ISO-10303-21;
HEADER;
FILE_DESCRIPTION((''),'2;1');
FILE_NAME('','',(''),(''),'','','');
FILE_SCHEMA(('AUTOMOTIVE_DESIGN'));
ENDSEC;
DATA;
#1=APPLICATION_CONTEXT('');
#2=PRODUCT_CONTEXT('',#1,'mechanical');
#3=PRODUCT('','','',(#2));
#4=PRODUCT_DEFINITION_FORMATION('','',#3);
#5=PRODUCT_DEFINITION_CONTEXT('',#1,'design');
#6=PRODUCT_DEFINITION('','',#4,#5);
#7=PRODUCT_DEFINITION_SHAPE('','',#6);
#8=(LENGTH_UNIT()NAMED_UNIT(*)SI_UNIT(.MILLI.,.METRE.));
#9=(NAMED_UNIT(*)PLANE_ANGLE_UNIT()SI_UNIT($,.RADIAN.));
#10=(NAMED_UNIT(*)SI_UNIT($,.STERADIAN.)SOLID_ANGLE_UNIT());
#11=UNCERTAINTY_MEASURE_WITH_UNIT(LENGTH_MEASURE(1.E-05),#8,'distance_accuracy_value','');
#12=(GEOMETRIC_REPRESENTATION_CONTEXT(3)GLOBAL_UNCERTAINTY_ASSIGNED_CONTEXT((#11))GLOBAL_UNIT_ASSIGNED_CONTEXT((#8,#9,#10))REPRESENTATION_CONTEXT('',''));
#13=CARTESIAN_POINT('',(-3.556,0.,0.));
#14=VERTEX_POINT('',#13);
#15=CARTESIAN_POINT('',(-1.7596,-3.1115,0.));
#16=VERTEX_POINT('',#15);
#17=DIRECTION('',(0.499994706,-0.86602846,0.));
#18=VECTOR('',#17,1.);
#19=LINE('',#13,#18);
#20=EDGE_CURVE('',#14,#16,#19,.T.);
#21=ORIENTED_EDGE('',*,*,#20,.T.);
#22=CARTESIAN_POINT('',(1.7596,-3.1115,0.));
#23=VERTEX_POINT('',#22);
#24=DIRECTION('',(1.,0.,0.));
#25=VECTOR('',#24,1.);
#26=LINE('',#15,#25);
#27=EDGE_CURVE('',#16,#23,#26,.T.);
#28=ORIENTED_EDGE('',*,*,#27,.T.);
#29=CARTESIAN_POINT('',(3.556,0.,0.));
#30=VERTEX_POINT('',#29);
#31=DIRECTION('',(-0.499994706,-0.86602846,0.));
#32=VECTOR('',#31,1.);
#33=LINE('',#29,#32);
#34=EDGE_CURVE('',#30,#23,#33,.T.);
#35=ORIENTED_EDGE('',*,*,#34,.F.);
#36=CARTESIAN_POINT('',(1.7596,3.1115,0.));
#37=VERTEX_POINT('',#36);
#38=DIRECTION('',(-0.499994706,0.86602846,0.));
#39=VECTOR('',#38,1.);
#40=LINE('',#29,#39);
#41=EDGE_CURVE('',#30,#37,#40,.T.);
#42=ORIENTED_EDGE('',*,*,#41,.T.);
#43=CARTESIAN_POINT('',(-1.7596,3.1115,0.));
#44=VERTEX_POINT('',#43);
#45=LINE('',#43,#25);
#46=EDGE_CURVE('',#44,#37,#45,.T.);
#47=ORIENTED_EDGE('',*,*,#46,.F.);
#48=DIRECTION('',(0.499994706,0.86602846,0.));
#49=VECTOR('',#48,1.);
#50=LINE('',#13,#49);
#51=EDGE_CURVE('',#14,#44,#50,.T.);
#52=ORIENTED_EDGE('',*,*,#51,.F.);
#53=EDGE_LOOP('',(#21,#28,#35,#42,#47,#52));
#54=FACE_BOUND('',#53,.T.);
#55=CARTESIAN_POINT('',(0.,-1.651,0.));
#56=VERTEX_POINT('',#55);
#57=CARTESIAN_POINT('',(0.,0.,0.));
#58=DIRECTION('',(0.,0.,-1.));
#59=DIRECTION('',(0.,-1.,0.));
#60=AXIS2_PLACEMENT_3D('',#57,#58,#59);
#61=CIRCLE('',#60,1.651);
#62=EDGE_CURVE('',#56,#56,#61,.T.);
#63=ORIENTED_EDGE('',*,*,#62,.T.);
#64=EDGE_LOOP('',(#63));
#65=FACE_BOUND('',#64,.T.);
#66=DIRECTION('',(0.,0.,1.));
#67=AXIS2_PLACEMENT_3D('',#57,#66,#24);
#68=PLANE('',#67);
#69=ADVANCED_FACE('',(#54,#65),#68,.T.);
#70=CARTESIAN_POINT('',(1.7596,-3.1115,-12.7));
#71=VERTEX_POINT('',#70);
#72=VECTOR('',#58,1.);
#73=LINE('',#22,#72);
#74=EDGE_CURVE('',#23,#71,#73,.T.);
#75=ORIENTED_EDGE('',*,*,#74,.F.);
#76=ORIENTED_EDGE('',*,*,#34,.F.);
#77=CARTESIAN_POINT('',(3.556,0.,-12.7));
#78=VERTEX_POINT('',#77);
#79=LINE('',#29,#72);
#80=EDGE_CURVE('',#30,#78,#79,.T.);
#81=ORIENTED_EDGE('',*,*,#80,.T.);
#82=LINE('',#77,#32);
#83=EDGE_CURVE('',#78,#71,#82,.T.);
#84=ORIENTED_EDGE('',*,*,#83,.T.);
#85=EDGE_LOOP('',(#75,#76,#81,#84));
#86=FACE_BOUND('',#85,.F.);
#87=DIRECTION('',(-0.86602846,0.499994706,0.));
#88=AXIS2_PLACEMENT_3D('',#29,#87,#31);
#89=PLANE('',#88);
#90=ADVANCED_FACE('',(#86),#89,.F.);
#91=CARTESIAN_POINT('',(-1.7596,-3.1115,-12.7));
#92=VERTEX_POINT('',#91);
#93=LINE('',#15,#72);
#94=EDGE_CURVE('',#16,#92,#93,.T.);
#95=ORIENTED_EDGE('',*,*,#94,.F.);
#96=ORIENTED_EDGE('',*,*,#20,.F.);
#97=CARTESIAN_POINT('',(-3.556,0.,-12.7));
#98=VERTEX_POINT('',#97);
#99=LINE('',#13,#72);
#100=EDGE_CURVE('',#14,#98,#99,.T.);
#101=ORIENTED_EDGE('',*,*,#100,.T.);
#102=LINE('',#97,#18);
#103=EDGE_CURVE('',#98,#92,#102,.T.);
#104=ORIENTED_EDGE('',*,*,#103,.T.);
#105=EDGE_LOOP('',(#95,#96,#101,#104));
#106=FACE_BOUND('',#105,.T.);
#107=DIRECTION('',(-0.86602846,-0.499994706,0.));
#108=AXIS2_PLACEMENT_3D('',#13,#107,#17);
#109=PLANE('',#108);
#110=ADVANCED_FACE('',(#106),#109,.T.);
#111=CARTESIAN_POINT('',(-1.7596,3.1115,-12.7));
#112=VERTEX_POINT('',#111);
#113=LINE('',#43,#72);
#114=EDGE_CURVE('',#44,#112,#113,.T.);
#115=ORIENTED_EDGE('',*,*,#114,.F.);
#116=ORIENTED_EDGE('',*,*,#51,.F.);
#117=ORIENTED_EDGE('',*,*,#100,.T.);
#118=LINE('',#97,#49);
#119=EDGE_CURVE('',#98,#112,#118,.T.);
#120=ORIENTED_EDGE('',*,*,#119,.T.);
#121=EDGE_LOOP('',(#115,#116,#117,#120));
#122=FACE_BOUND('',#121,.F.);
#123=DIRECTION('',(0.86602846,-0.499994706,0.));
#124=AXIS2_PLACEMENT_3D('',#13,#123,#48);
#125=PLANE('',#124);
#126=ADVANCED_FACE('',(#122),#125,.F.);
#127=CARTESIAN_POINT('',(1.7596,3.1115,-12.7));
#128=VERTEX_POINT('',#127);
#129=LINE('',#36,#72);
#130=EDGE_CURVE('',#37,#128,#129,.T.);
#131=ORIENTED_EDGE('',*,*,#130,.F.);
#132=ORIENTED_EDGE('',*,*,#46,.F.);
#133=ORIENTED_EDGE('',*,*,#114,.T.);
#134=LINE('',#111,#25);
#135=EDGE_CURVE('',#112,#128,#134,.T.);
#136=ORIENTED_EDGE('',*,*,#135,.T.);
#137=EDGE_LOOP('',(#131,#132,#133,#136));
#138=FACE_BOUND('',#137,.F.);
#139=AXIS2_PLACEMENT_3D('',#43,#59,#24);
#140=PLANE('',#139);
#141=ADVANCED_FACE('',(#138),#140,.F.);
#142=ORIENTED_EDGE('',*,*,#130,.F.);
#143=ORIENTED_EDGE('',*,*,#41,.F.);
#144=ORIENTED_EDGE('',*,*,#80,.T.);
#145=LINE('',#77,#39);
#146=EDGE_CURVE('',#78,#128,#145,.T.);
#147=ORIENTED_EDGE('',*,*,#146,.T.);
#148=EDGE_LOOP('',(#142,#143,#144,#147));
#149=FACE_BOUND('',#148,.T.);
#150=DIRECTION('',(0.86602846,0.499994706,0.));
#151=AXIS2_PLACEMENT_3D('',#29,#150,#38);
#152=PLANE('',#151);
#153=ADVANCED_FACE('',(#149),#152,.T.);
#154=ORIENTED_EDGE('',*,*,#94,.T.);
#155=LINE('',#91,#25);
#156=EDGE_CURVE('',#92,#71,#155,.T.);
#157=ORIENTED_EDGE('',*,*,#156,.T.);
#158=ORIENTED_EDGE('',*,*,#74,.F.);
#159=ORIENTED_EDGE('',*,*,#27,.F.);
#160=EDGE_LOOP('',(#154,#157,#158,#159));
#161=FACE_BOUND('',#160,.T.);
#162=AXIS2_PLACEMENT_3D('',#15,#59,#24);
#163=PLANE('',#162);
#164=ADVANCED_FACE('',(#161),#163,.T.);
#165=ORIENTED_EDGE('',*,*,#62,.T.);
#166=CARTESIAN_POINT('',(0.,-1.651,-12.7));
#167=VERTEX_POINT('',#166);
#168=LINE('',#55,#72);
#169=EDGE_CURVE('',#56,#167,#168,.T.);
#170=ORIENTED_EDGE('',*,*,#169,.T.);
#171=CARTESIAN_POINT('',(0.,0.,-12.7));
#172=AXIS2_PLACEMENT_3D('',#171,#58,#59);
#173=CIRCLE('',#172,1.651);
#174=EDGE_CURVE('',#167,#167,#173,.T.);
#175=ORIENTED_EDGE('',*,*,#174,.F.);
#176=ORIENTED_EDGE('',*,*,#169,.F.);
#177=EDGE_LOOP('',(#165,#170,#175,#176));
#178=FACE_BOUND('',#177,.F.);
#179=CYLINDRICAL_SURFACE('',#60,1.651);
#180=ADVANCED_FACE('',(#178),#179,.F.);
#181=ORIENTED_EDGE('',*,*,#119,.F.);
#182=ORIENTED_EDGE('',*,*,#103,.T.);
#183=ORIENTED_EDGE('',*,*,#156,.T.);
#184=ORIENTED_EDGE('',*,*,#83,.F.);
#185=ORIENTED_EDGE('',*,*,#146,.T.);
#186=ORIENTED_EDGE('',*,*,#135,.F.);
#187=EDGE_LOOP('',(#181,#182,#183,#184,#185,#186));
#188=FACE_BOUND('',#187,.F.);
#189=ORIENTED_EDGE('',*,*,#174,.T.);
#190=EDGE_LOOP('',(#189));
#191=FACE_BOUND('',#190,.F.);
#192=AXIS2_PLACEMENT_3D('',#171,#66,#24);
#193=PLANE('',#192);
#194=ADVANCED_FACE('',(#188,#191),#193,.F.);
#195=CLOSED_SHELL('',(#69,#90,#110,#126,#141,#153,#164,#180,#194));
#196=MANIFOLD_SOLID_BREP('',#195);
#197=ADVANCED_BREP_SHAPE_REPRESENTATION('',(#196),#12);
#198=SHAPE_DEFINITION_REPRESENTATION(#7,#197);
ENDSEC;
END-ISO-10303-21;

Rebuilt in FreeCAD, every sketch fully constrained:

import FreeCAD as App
import Part
import Sketcher
from FreeCAD import Vector
Q = App.Units.Quantity


def add_polygon(sketch, points):
    """Adds a closed chain of lines whose ends are joined by coincident constraints."""
    first, n = sketch.GeometryCount, len(points)
    for a, b in zip(points, points[1:] + points[:1]):
        sketch.addGeometry(Part.LineSegment(App.Vector(*a, 0), App.Vector(*b, 0)), False)
    for i in range(n):
        sketch.addConstraint(Sketcher.Constraint("Coincident", first + i, 2, first + (i + 1) % n, 1))

doc = App.newDocument("Part")
body = doc.addObject("PartDesign::Body", "Body")

# Sketch on XY plane
sketch1 = body.newObject("Sketcher::SketchObject", "Sketch")
sketch1.AttachmentSupport = (doc.getObject("XY_Plane"), [""])
sketch1.MapMode = "FlatFace"
add_polygon(sketch1, [(1.7596, -3.1115), (3.556, 0), (1.7596, 3.1115), (-1.7596, 3.1115), (-3.556, 0), (-1.7596, -3.1115)])  # lines 0-5
sketch1.addConstraint([
    Sketcher.Constraint("Horizontal", 2),
    Sketcher.Constraint("Horizontal", 5),
    Sketcher.Constraint("Symmetric", 0, 2, 3, 2, -1, 1),
    Sketcher.Constraint("Symmetric", 1, 2, 4, 2, -1, 1),
    Sketcher.Constraint("PointOnObject", 0, 2, -1),
    Sketcher.Constraint("Parallel", 0, 3),
    Sketcher.Constraint("Vertical", 2, 2, 4, 2),
    Sketcher.Constraint("Angle", 0, Q("60.0004 deg")),
    Sketcher.Constraint("DistanceX", 3, 2, 0, 2, Q("0.28 in")),
    Sketcher.Constraint("DistanceY", 4, 2, 2, 2, Q("0.245 in")),
])
pad1 = body.newObject("PartDesign::Pad", "Pad")
pad1.Profile = sketch1
pad1.Length = Q("0.5 in")
pad1.Reversed = True

# Sketch on XY plane
sketch2 = body.newObject("Sketcher::SketchObject", "Sketch001")
sketch2.AttachmentSupport = (doc.getObject("XY_Plane"), [""])
sketch2.MapMode = "FlatFace"
sketch2.addGeometry(Part.Circle(Vector(0, 0, 0), Vector(0, 0, 1), 1.651), False)
sketch2.addConstraint([
    Sketcher.Constraint("Coincident", 0, 3, -1, 1),
    Sketcher.Constraint("Diameter", 0, Q("0.13 in")),
])
doc.recompute()
hole = body.newObject("PartDesign::Hole", "Hole")
hole.Profile = sketch2
hole.ThreadType = "None"
hole.Diameter = Q("0.13 in")
hole.DepthType = "ThroughAll"

doc.recompute()
